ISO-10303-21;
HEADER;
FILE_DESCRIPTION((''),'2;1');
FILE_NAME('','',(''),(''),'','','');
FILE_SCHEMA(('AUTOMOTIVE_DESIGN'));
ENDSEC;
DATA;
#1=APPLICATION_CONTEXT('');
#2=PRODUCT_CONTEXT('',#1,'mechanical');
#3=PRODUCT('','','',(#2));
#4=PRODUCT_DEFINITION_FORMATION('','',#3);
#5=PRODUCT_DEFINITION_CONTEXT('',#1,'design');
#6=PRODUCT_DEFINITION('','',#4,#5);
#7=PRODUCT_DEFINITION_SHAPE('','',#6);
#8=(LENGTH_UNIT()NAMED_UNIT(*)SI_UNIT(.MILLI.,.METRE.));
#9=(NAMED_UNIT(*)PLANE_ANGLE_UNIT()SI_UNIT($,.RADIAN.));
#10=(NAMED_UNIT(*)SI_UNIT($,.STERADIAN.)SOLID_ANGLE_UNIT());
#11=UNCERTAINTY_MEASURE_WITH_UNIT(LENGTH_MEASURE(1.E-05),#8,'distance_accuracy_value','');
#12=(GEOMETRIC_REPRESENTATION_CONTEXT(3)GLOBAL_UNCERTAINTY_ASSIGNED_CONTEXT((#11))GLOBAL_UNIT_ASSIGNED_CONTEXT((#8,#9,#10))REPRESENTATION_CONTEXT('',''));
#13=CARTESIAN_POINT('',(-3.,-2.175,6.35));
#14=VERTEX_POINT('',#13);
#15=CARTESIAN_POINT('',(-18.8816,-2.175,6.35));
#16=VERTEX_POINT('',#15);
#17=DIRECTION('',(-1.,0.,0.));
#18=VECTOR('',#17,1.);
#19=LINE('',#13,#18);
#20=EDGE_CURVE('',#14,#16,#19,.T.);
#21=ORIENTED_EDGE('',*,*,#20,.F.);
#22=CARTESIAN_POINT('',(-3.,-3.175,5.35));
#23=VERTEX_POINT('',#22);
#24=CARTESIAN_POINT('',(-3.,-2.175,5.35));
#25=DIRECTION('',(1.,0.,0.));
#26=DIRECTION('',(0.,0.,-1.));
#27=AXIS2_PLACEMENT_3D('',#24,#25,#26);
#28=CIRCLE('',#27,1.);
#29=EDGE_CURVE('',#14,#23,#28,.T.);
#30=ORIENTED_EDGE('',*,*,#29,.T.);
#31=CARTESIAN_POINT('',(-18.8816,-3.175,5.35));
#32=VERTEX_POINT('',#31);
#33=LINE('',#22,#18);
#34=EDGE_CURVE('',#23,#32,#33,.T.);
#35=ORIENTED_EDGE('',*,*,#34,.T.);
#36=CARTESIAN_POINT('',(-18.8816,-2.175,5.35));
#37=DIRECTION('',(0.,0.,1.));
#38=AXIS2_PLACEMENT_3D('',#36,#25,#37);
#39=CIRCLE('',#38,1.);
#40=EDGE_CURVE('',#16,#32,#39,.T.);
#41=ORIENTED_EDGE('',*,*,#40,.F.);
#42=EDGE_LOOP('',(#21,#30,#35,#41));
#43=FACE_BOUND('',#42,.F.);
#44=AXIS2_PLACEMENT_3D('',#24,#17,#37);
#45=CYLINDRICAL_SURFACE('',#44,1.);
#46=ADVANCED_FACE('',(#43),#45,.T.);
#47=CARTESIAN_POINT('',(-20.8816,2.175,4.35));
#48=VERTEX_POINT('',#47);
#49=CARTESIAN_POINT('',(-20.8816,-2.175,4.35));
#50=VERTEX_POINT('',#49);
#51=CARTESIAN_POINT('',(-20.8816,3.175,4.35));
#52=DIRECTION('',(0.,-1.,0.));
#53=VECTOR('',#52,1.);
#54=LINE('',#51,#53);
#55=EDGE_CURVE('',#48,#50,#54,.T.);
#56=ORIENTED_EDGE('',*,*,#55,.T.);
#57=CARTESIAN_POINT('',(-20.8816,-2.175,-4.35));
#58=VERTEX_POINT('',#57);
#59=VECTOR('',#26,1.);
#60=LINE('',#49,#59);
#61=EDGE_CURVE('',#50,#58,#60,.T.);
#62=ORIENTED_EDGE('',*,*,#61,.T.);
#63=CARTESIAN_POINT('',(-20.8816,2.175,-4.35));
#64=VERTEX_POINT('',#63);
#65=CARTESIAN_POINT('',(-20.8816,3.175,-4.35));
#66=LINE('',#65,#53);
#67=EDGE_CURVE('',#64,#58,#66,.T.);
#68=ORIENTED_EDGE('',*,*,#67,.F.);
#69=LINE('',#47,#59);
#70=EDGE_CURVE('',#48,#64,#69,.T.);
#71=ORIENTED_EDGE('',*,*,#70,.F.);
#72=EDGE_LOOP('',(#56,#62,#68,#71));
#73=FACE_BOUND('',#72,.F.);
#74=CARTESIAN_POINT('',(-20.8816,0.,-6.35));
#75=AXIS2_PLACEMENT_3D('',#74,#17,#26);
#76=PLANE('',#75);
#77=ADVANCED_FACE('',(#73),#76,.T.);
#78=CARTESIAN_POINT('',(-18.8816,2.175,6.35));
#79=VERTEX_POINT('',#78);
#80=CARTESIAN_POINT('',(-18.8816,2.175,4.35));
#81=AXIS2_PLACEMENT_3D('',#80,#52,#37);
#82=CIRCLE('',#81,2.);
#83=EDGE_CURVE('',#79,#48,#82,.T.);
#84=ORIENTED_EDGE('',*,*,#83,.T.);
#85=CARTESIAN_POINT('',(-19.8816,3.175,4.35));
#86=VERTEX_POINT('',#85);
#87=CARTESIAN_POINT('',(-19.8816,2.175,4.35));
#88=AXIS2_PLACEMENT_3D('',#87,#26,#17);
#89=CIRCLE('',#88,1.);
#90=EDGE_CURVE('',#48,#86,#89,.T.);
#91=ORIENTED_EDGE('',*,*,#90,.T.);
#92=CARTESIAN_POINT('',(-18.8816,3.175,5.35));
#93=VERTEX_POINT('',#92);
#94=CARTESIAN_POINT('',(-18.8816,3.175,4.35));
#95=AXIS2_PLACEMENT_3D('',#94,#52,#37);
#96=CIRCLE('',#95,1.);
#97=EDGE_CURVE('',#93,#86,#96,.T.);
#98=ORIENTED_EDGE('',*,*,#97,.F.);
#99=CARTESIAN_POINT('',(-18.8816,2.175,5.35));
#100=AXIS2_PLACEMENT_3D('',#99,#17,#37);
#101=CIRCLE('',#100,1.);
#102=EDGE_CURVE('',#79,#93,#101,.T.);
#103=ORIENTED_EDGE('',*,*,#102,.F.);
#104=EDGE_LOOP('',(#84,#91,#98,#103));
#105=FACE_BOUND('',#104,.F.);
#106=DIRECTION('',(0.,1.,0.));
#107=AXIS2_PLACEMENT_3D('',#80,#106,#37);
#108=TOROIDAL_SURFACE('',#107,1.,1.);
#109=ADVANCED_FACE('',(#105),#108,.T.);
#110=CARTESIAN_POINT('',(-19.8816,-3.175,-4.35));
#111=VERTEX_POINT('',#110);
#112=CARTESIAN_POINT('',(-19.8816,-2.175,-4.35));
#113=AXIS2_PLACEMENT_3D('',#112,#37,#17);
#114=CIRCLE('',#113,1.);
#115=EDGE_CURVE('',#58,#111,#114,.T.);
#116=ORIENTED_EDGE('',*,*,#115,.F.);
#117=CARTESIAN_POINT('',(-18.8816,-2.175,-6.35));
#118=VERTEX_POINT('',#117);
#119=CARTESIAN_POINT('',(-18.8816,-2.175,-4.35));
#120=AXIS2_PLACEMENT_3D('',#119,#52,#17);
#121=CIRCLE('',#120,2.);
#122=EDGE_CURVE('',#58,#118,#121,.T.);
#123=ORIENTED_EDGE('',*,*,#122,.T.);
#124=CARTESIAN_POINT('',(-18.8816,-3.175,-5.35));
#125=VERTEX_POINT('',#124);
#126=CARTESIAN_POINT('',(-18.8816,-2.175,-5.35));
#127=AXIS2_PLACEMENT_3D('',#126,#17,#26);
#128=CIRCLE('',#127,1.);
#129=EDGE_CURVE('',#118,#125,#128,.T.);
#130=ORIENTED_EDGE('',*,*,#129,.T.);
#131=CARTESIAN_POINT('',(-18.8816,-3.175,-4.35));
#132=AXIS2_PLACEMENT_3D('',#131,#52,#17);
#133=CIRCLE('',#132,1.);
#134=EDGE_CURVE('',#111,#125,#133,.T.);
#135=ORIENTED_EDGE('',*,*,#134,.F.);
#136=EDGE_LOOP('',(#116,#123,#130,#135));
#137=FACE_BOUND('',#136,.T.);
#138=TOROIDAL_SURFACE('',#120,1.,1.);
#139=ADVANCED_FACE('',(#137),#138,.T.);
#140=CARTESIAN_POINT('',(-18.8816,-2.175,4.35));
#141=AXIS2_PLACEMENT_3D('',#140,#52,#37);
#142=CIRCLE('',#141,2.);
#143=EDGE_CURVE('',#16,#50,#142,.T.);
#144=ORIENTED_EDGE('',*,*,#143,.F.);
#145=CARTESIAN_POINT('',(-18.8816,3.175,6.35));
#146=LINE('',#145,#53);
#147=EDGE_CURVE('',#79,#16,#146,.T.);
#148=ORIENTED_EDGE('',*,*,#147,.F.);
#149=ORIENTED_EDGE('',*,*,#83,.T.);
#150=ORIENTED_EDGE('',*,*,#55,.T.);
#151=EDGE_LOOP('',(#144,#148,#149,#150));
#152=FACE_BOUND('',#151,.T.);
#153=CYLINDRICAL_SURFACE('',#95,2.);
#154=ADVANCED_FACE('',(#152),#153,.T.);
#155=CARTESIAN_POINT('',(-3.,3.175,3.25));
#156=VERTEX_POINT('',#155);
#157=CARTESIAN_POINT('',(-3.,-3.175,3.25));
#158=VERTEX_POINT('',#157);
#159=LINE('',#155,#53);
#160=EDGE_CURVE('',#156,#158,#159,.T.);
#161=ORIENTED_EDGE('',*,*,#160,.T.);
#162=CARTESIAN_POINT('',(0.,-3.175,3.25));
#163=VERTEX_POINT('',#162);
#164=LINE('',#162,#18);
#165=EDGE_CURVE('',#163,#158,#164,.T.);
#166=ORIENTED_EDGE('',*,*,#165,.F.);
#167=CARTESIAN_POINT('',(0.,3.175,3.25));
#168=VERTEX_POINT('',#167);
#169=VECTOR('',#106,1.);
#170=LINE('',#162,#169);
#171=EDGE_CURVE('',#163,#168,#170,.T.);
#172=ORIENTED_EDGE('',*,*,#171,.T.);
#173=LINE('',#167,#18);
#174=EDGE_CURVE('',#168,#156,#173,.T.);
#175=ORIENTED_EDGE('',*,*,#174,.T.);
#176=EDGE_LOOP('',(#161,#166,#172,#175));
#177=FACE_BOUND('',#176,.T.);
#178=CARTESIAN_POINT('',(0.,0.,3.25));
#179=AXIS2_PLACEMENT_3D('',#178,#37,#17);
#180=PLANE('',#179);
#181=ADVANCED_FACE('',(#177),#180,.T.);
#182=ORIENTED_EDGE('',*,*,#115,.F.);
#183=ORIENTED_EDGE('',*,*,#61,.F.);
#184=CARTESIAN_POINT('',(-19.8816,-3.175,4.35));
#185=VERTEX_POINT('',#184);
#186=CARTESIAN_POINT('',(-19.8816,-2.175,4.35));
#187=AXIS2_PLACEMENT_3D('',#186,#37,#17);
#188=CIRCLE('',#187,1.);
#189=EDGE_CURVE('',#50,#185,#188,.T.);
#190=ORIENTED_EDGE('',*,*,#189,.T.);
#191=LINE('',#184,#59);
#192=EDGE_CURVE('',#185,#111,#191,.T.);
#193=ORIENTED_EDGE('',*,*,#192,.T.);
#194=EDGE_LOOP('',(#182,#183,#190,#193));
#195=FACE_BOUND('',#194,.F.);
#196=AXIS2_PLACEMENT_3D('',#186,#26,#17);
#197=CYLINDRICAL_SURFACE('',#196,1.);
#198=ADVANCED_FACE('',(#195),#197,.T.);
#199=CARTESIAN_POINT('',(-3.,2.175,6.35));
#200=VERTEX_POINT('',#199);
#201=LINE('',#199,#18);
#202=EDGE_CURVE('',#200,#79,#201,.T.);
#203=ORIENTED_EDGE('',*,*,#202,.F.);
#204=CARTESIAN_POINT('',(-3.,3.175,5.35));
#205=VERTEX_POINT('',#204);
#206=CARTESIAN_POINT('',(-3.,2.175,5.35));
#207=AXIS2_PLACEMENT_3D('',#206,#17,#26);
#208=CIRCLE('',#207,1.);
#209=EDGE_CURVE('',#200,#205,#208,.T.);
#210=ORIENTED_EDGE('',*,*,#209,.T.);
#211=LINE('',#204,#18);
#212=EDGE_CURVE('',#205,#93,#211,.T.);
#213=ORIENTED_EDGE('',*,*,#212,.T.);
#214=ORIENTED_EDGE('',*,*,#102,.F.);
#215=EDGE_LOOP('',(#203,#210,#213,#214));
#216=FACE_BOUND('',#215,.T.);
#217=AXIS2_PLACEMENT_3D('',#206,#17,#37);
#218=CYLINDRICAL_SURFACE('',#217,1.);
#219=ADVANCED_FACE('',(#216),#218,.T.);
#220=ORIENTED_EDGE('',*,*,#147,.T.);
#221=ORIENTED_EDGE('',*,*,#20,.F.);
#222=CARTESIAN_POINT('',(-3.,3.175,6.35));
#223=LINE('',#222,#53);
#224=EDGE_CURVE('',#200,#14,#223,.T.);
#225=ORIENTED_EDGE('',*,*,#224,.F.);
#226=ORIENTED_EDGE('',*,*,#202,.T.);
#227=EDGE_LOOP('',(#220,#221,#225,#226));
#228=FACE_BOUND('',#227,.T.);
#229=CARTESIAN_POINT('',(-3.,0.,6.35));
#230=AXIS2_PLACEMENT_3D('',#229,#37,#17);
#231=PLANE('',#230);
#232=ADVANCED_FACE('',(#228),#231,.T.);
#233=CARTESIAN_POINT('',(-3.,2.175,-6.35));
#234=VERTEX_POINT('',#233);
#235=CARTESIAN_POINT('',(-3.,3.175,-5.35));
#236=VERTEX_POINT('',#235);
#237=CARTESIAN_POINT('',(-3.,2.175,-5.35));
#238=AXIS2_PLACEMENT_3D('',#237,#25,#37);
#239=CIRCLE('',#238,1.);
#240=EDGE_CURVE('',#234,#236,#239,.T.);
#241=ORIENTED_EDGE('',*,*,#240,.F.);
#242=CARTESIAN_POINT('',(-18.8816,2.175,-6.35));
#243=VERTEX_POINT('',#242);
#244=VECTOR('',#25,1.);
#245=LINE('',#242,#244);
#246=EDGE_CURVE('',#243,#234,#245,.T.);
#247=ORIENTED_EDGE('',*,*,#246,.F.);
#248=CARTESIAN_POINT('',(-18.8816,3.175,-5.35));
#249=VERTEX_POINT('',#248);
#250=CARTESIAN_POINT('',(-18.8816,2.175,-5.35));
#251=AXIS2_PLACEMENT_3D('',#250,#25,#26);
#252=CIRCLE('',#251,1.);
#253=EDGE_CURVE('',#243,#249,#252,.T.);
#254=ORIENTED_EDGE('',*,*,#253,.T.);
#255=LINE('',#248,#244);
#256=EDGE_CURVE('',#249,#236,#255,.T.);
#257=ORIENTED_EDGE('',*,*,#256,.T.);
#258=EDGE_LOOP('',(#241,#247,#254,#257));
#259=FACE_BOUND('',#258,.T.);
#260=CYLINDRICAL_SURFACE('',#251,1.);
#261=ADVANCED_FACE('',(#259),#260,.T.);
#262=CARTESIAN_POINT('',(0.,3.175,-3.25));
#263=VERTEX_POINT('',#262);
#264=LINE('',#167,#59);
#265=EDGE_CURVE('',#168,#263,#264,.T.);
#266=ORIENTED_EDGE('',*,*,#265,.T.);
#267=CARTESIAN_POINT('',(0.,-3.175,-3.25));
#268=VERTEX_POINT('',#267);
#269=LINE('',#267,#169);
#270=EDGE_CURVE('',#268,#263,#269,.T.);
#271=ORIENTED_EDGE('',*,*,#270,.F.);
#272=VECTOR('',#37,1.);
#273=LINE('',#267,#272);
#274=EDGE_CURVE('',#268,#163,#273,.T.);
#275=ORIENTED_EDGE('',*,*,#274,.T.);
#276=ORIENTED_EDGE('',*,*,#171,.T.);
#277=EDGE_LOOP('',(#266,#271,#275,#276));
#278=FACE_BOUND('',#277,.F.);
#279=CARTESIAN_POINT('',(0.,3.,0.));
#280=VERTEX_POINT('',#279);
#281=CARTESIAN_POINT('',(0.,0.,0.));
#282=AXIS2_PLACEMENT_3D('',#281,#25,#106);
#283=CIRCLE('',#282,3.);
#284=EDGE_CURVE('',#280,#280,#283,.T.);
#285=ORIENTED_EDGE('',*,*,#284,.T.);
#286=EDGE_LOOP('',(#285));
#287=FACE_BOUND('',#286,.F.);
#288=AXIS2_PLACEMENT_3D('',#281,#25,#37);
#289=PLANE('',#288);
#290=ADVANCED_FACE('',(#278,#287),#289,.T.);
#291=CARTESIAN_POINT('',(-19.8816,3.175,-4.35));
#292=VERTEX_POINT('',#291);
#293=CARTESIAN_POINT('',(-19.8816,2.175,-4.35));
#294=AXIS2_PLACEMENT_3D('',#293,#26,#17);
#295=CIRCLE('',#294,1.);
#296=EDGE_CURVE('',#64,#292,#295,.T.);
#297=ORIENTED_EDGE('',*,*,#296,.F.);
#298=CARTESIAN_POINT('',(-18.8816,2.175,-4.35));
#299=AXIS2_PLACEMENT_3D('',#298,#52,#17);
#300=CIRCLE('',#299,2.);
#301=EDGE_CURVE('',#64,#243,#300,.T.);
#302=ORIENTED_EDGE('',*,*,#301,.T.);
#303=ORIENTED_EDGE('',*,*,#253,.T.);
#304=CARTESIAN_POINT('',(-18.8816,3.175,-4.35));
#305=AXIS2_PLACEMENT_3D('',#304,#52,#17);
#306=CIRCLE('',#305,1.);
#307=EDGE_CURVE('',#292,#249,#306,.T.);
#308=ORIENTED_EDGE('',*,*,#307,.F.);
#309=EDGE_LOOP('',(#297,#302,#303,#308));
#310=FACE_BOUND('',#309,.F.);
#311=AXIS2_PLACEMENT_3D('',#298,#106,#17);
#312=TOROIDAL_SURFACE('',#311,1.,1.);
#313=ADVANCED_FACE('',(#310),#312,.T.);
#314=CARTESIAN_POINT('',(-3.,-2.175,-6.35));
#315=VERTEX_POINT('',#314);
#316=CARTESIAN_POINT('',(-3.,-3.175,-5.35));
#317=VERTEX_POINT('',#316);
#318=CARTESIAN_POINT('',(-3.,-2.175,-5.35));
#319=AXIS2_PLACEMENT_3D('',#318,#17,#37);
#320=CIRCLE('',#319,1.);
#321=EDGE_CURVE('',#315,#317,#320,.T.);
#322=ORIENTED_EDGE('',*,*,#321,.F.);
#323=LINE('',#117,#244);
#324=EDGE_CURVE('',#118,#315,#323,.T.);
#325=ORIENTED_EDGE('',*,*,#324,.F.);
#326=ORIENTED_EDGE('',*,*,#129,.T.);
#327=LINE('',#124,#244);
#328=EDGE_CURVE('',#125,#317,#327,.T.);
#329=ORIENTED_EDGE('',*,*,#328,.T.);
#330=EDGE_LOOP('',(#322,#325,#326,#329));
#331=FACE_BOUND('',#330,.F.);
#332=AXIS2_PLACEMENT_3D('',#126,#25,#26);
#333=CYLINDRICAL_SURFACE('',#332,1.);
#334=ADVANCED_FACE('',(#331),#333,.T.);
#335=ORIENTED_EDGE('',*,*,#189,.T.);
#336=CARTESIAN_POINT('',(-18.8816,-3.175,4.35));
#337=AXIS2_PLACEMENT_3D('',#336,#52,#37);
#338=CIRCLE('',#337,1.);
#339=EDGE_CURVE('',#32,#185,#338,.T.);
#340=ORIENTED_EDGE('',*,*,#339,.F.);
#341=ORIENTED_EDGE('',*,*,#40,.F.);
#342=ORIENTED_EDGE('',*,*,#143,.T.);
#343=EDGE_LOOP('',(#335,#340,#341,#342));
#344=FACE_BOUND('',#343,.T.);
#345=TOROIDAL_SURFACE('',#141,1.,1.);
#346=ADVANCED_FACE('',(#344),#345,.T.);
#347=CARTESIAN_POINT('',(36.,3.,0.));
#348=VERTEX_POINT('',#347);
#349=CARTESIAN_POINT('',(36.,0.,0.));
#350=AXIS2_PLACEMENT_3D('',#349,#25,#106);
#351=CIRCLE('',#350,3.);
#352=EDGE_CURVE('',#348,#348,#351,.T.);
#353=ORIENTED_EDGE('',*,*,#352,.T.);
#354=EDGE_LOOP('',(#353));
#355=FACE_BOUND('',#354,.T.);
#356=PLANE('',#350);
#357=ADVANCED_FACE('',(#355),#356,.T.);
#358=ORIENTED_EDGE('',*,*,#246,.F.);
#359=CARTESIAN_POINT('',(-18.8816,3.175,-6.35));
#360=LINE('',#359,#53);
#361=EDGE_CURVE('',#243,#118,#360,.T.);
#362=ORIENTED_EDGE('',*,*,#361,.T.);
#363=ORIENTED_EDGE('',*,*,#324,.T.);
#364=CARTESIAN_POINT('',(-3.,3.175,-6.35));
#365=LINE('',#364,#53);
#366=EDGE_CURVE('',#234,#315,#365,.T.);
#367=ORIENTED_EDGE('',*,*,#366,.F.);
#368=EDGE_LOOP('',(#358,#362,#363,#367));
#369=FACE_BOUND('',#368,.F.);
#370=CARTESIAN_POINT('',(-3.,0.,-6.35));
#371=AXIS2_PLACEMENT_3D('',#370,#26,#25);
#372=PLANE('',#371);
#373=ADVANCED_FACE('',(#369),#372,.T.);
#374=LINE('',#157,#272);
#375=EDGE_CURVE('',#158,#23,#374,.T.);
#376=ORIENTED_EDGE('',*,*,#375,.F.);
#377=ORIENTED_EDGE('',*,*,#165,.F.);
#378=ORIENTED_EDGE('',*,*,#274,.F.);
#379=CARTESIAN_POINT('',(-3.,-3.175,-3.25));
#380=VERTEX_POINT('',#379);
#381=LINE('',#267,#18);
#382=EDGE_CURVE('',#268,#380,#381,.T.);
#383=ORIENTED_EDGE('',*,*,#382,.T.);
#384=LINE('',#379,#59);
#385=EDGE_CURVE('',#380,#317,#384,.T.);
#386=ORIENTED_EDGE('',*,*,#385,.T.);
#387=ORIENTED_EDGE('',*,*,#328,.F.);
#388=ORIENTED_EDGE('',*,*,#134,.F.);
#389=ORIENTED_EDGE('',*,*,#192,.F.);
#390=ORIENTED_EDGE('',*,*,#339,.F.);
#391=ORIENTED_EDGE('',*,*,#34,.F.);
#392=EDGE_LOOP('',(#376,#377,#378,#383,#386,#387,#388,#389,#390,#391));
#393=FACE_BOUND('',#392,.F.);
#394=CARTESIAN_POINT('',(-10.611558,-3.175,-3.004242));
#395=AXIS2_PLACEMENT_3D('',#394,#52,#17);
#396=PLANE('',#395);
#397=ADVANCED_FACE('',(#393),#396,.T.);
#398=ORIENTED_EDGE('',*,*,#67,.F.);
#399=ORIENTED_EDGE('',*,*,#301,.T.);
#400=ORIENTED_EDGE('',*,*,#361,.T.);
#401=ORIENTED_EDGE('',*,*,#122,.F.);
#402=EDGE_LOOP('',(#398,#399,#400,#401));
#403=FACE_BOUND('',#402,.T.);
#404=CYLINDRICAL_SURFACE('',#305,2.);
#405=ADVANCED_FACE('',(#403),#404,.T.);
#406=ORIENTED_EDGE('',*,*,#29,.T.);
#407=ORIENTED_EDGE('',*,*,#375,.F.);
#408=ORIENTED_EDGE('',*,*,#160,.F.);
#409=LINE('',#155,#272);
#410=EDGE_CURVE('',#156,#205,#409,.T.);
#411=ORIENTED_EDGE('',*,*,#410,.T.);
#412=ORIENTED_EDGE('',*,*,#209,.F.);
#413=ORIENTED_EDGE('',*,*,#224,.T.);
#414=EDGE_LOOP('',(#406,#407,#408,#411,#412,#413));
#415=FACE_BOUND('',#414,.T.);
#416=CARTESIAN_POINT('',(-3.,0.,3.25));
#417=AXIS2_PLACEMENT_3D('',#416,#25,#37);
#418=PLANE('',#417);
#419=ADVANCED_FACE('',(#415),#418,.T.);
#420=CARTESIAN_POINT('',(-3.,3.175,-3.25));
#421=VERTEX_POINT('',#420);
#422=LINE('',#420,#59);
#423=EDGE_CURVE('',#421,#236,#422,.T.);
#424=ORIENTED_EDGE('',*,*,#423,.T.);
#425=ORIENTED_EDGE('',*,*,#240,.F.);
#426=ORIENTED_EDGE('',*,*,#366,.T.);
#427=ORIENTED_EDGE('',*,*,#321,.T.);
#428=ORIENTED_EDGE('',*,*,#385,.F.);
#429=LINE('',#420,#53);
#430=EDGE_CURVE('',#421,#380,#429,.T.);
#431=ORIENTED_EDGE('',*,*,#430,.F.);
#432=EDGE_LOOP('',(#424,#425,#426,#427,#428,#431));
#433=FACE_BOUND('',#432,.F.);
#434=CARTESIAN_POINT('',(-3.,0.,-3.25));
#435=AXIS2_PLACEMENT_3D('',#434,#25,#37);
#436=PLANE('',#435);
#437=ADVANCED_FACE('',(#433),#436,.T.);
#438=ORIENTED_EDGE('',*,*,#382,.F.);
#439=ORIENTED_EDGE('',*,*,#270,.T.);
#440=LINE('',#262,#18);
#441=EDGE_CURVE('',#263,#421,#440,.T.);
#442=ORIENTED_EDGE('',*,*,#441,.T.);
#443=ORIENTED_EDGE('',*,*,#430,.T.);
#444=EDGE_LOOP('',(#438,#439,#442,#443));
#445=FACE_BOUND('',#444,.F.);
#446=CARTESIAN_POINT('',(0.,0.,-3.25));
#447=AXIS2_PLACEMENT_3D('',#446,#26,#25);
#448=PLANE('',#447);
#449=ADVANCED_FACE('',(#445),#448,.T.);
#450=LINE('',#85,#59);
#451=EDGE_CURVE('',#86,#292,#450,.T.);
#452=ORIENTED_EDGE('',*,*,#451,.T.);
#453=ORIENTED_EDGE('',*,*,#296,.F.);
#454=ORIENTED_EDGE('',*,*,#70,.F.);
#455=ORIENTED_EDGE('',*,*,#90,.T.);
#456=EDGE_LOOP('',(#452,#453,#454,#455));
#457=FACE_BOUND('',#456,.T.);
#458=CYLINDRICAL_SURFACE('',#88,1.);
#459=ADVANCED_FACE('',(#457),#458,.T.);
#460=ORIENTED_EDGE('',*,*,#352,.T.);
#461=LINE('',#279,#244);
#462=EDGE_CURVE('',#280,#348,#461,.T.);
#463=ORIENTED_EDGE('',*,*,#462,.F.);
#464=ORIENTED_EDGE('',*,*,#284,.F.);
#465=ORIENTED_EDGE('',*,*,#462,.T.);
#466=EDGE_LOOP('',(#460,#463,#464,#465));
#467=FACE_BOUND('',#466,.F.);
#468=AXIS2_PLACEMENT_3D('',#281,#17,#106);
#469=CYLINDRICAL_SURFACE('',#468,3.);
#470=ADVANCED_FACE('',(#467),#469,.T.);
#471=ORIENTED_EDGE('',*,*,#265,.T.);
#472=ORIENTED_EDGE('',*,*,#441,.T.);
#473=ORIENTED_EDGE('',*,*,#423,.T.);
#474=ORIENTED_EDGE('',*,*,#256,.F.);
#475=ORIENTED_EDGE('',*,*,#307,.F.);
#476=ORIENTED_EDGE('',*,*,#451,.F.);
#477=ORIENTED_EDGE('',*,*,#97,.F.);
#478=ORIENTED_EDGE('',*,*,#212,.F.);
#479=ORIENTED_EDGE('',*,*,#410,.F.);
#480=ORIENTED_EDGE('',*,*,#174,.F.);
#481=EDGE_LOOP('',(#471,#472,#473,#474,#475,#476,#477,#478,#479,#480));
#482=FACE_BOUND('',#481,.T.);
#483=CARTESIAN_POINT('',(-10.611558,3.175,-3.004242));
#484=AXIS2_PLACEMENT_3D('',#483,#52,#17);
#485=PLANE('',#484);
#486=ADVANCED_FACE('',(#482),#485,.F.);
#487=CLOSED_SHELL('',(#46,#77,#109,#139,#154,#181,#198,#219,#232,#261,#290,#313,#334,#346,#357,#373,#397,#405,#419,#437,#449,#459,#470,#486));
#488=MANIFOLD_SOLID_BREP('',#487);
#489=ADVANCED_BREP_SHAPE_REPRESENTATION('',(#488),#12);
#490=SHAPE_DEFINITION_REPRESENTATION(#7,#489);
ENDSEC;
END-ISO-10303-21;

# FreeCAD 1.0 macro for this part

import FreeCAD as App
import Part
import Sketcher
from FreeCAD import Vector
Q = App.Units.Quantity


def edges_at(feature, points):
    """Names of the edges that pass closest to the given points."""
    edges = feature.Shape.Edges
    near = lambda p: min(range(len(edges)), key=lambda i: edges[i].distToShape(Part.Vertex(*p))[0])
    return sorted({f"Edge{near(p) + 1}" for p in points})

doc = App.newDocument("Part")
body = doc.addObject("PartDesign::Body", "Body")

sketch1 = body.newObject("Sketcher::SketchObject", "Sketch")
sketch1.AttachmentSupport = (doc.getObject("XZ_Plane"), [""])
sketch1.MapMode = "FlatFace"
sketch1.addGeometry(Part.LineSegment(Vector(0, 3.25, 0), Vector(-3, 3.25, 0)), False)
sketch1.addGeometry(Part.LineSegment(Vector(-3, 3.25, 0), Vector(-3, 6.35, 0)), False)
sketch1.addGeometry(Part.LineSegment(Vector(-3, 6.35, 0), Vector(-20.8816, 6.35, 0)), False)
sketch1.addGeometry(Part.LineSegment(Vector(-20.8816, 6.35, 0), Vector(-20.8816, 0, 0)), False)
sketch1.addGeometry(Part.LineSegment(Vector(-20.8816, 0, 0), Vector(0, 0, 0)), False)
sketch1.addGeometry(Part.LineSegment(Vector(0, 0, 0), Vector(0, 3.25, 0)), False)
sketch1.addConstraint(Sketcher.Constraint("Coincident", 0, 2, 1, 1))
sketch1.addConstraint(Sketcher.Constraint("Coincident", 1, 2, 2, 1))
sketch1.addConstraint(Sketcher.Constraint("Coincident", 2, 2, 3, 1))
sketch1.addConstraint(Sketcher.Constraint("Coincident", 3, 2, 4, 1))
sketch1.addConstraint(Sketcher.Constraint("Coincident", 4, 2, 5, 1))
sketch1.addConstraint(Sketcher.Constraint("Coincident", 5, 2, 0, 1))
sketch1.addConstraint(Sketcher.Constraint("Horizontal", 0))
sketch1.addConstraint(Sketcher.Constraint("Vertical", 1))
sketch1.addConstraint(Sketcher.Constraint("Horizontal", 2))
sketch1.addConstraint(Sketcher.Constraint("Vertical", 3))
sketch1.addConstraint(Sketcher.Constraint("Horizontal", 4))
sketch1.addConstraint(Sketcher.Constraint("Vertical", 5))
sketch1.addConstraint(Sketcher.Constraint("Coincident", 4, 2, -1, 1))
sketch1.addConstraint(Sketcher.Constraint("DistanceX", 0, 2, 0, 1, Q("3 mm")))
sketch1.addConstraint(Sketcher.Constraint("DistanceY", 1, 1, 1, 2, Q("3.1 mm")))
sketch1.addConstraint(Sketcher.Constraint("DistanceY", 3, 2, 3, 1, Q("6.35 mm")))
sketch1.addConstraint(Sketcher.Constraint("DistanceX", 2, 2, 2, 1, Q("17.8816 mm")))
pad1 = body.newObject("PartDesign::Pad", "Pad")
pad1.Profile = sketch1
pad1.Length = 6.35
pad1.Midplane = True
doc.recompute()

mirrored = body.newObject("PartDesign::Mirrored", "Mirrored")
mirrored.Originals = [pad1]
mirrored.MirrorPlane = (doc.getObject("XY_Plane"), [""])
body.Tip = mirrored
doc.recompute()

fillet = body.newObject("PartDesign::Fillet", "Fillet")
fillet.Base = (mirrored, edges_at(mirrored, [(-20.882, 0, -6.35), (-20.882, 0, 6.35)]))
fillet.Radius = 2
doc.recompute()

fillet2 = body.newObject("PartDesign::Fillet", "Fillet001")
fillet2.Base = (fillet, edges_at(fillet, [(-10.941, 3.175, 6.35), (-10.941, -3.175, 6.35)]))
fillet2.Radius = 1

sketch2 = body.newObject("Sketcher::SketchObject", "Sketch001")
sketch2.AttachmentSupport = (doc.getObject("YZ_Plane"), [""])
sketch2.MapMode = "FlatFace"
sketch2.addGeometry(Part.Circle(Vector(0, 0, 0), Vector(0, 0, 1), 3), False)
sketch2.addConstraint(Sketcher.Constraint("Coincident", 0, 3, -1, 1))
sketch2.addConstraint(Sketcher.Constraint("Diameter", 0, Q("6 mm")))
pad2 = body.newObject("PartDesign::Pad", "Pad001")
pad2.Profile = sketch2
pad2.Length = 36

doc.recompute()
